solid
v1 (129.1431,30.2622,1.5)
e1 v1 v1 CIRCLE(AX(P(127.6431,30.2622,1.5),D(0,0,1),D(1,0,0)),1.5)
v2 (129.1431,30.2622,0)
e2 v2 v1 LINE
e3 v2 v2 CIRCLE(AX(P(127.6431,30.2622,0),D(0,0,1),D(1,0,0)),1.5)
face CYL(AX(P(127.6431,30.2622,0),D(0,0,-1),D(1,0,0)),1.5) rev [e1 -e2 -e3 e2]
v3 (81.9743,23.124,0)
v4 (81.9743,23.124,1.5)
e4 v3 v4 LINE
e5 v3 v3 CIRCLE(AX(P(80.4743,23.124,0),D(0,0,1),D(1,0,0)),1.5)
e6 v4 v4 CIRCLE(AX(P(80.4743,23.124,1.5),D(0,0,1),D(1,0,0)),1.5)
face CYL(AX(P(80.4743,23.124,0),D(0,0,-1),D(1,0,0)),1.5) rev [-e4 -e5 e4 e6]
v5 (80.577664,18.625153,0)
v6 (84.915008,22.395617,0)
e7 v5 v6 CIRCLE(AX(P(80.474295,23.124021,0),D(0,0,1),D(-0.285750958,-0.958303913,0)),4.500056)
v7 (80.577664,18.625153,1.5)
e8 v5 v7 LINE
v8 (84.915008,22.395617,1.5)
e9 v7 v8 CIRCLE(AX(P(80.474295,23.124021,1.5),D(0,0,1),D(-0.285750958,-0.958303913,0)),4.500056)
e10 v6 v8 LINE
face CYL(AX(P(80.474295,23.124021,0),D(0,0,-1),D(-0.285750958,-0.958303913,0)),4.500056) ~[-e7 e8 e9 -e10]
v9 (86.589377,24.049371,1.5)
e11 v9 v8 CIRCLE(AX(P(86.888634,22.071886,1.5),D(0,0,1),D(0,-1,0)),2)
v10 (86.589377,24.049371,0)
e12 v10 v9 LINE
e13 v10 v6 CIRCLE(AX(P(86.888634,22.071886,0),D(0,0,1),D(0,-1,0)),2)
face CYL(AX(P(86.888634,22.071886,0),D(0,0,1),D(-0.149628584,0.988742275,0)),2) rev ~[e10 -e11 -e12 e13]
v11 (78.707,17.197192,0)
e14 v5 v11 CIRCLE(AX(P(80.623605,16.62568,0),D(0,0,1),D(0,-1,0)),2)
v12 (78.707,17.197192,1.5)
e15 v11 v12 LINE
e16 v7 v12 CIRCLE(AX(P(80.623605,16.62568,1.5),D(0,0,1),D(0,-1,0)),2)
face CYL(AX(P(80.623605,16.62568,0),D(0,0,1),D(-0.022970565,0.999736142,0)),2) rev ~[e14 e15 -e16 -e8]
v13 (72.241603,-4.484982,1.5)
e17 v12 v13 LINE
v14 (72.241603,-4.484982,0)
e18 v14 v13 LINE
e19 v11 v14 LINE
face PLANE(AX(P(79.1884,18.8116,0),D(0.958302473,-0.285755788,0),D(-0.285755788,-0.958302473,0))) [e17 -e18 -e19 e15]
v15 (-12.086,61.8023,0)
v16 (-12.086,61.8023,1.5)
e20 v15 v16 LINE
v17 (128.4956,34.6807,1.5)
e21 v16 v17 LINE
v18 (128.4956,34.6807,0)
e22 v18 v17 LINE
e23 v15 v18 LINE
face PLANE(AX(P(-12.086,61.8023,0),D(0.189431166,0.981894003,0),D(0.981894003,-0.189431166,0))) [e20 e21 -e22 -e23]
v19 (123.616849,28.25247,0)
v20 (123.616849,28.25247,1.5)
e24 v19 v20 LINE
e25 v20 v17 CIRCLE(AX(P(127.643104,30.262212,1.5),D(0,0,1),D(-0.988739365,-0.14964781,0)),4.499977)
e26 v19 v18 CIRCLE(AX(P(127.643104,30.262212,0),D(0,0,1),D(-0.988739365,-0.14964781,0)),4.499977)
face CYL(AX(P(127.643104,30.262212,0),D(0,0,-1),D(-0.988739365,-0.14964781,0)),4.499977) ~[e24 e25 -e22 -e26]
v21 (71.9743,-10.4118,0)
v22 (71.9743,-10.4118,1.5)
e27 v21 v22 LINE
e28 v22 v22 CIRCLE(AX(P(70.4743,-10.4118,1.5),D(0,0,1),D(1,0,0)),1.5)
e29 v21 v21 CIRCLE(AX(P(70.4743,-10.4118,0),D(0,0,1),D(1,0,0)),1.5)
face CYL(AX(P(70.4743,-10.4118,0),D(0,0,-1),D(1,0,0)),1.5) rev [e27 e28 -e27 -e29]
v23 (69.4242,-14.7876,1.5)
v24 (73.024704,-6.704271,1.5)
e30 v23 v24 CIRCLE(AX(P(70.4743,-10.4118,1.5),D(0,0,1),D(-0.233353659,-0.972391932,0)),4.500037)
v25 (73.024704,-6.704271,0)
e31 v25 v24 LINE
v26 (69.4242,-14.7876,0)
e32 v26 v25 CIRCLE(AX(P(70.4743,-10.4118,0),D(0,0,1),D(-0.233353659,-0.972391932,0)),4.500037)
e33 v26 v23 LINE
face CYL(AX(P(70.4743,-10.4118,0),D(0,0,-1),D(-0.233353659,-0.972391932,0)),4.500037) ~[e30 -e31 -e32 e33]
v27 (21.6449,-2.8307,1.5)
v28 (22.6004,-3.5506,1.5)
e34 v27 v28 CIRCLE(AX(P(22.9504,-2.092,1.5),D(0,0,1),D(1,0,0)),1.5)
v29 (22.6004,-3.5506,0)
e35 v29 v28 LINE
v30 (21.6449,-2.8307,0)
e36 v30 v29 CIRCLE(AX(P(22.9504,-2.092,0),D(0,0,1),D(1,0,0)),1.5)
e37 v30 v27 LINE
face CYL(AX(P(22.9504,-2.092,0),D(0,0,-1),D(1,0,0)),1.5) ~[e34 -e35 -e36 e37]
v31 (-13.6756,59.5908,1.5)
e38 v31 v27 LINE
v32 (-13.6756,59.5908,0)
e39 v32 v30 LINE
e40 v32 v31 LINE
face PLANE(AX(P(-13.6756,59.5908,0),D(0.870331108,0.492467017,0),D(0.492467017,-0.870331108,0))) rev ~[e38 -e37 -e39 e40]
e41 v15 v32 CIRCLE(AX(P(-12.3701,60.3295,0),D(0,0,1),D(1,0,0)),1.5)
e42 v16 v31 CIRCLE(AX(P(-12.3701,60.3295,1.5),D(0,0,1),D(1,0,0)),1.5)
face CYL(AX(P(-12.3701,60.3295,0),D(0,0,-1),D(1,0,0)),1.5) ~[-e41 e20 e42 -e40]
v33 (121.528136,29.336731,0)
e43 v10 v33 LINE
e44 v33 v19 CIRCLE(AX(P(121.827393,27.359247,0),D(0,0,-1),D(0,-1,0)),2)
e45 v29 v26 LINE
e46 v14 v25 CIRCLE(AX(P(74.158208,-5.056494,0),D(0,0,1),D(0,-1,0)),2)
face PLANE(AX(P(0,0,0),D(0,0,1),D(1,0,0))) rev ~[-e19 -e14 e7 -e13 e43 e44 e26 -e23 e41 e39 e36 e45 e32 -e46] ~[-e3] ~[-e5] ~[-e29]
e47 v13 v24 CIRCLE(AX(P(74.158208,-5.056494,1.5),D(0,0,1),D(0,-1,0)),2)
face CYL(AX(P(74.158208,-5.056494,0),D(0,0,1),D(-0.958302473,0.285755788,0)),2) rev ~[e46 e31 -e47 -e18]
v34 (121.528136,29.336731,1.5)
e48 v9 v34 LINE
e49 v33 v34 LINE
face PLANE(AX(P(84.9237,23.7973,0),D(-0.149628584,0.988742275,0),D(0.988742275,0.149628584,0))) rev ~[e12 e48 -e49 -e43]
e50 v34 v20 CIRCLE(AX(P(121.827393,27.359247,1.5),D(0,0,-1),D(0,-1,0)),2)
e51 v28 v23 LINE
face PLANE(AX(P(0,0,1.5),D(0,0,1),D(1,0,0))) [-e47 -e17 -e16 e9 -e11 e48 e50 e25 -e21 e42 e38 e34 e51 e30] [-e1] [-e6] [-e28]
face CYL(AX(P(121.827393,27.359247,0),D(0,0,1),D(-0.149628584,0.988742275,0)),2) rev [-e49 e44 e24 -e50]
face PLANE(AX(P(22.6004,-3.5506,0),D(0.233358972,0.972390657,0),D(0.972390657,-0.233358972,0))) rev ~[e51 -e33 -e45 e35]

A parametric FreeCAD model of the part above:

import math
import FreeCAD as App
import Part
import Sketcher
from FreeCAD import Vector


def edges_at(feature, points):
    """Names of the edges that pass closest to the given points."""
    edges = feature.Shape.Edges
    near = lambda p: min(range(len(edges)), key=lambda i: edges[i].distToShape(Part.Vertex(*p))[0])
    return sorted({f"Edge{near(p) + 1}" for p in points})

doc = App.newDocument("Part")
body = doc.addObject("PartDesign::Body", "Body")

# Sketch on XY plane
sketch1 = body.newObject("Sketcher::SketchObject", "Sketch")
sketch1.AttachmentSupport = (doc.getObject("XY_Plane"), [""])
sketch1.MapMode = "FlatFace"
sketch1.addGeometry(Part.LineSegment(Vector(84.9237, 23.7973, 0), Vector(123.1938, 29.5888, 0)), False)
sketch1.addGeometry(Part.ArcOfCircle(Part.Circle(Vector(127.6431, 30.2622, 0), Vector(0, 0, 1), 4.499971), math.radians(-171.393622), math.radians(79.079608)), False)
sketch1.addGeometry(Part.LineSegment(Vector(128.4956, 34.6807, 0), Vector(-12.086, 61.8023, 0)), False)
sketch1.addGeometry(Part.ArcOfCircle(Part.Circle(Vector(-12.3701, 60.3295, 0), Vector(0, 0, 1), 1.5), math.radians(79.081867), math.radians(209.502781)), False)
sketch1.addGeometry(Part.LineSegment(Vector(-13.6756, 59.5908, 0), Vector(21.6449, -2.8307, 0)), False)
sketch1.addGeometry(Part.ArcOfCircle(Part.Circle(Vector(22.9504, -2.092, 0), Vector(0, 0, 1), 1.5), math.radians(-150.497219), math.radians(-103.493356)), False)
sketch1.addGeometry(Part.LineSegment(Vector(22.6004, -3.5506, 0), Vector(69.4242, -14.7876, 0)), False)
sketch1.addGeometry(Part.ArcOfCircle(Part.Circle(Vector(70.4743, -10.4118, 0), Vector(0, 0, 1), 4.500037), math.radians(-103.494594), math.radians(73.396123)), False)
sketch1.addGeometry(Part.LineSegment(Vector(71.7602, -6.0994, 0), Vector(79.1884, 18.8116, 0)), False)
sketch1.addGeometry(Part.ArcOfCircle(Part.Circle(Vector(80.4743, 23.124, 0), Vector(0, 0, 1), 4.500037), math.radians(-106.603877), math.radians(8.604929)), False)
sketch1.addGeometry(Part.Circle(Vector(70.4743, -10.4118, 0), Vector(0, 0, 1), 1.5), False)
sketch1.addGeometry(Part.Circle(Vector(80.4743, 23.124, 0), Vector(0, 0, 1), 1.5), False)
sketch1.addGeometry(Part.Circle(Vector(127.6431, 30.2622, 0), Vector(0, 0, 1), 1.5), False)
sketch1.addConstraint(Sketcher.Constraint("Coincident", 0, 2, 1, 1))
sketch1.addConstraint(Sketcher.Constraint("Coincident", 1, 2, 2, 1))
sketch1.addConstraint(Sketcher.Constraint("Coincident", 2, 2, 3, 1))
sketch1.addConstraint(Sketcher.Constraint("Coincident", 3, 2, 4, 1))
sketch1.addConstraint(Sketcher.Constraint("Coincident", 4, 2, 5, 1))
sketch1.addConstraint(Sketcher.Constraint("Coincident", 5, 2, 6, 1))
sketch1.addConstraint(Sketcher.Constraint("Coincident", 6, 2, 7, 1))
sketch1.addConstraint(Sketcher.Constraint("Coincident", 7, 2, 8, 1))
sketch1.addConstraint(Sketcher.Constraint("Coincident", 8, 2, 9, 1))
sketch1.addConstraint(Sketcher.Constraint("Coincident", 9, 2, 0, 1))
sketch1.addConstraint(Sketcher.Constraint("Coincident", 10, 3, 7, 3))
sketch1.addConstraint(Sketcher.Constraint("Coincident", 11, 3, 9, 3))
sketch1.addConstraint(Sketcher.Constraint("Coincident", 12, 3, 1, 3))
sketch1.addConstraint(Sketcher.Constraint("Diameter", 10, 3.0))
sketch1.addConstraint(Sketcher.Constraint("Diameter", 11, 3.0))
sketch1.addConstraint(Sketcher.Constraint("Diameter", 12, 3.0))
sketch1.addConstraint(Sketcher.Constraint("Radius", 1, 4.5))
sketch1.addConstraint(Sketcher.Constraint("Radius", 3, 1.5))
sketch1.addConstraint(Sketcher.Constraint("Radius", 5, 1.5))
sketch1.addConstraint(Sketcher.Constraint("Radius", 7, 4.5))
sketch1.addConstraint(Sketcher.Constraint("Radius", 9, 4.5))
sketch1.addConstraint(Sketcher.Constraint("DistanceX", 7, 3, 9, 3, 10.0))
sketch1.addConstraint(Sketcher.Constraint("DistanceX", 3, 3, -1, 1, 12.37))
sketch1.addConstraint(Sketcher.Constraint("DistanceX", 3, 2, 9, 3, 94.15))
sketch1.addConstraint(Sketcher.Constraint("DistanceY", 5, 2, 4, 2, 0.72))
sketch1.addConstraint(Sketcher.Constraint("DistanceX", 5, 2, 5, 3, 0.35))
sketch1.addConstraint(Sketcher.Constraint("DistanceX", 6, 2, 7, 3, 1.05))
sketch1.addConstraint(Sketcher.Constraint("Distance", 2, 143.174))
sketch1.addConstraint(Sketcher.Constraint("Distance", 8, 25.995))
sketch1.addConstraint(Sketcher.Constraint("DistanceX", -1, 1, 1, 3, 127.643))
sketch1.addConstraint(Sketcher.Constraint("DistanceY", 5, 3, -1, 1, 2.092))
sketch1.addConstraint(Sketcher.Constraint("DistanceY", -1, 1, 9, 3, 23.124))
sketch1.addConstraint(Sketcher.Constraint("DistanceX", 2, 2, -1, 1, 12.086))
sketch1.addConstraint(Sketcher.Constraint("DistanceX", -1, 1, 4, 2, 21.645))
sketch1.addConstraint(Sketcher.Constraint("DistanceX", 5, 3, 7, 3, 47.524))
sketch1.addConstraint(Sketcher.Constraint("DistanceY", 7, 3, 1, 3, 40.674))
sketch1.addConstraint(Sketcher.Constraint("DistanceY", 0, 2, 1, 2, 5.092))
sketch1.addConstraint(Sketcher.Constraint("DistanceY", 7, 3, 2, 2, 72.214))
sketch1.addConstraint(Sketcher.Constraint("DistanceX", 7, 3, 7, 2, 1.286))
sketch1.addConstraint(Sketcher.Constraint("DistanceX", 8, 2, 9, 3, 1.286))
sketch1.addConstraint(Sketcher.Constraint("DistanceY", 7, 3, 9, 2, 34.209))
pad1 = body.newObject("PartDesign::Pad", "Pad")
pad1.Profile = sketch1
pad1.Length = 1.5
doc.recompute()

fillet = body.newObject("PartDesign::Fillet", "Fillet")
fillet.Base = (pad1, edges_at(pad1, [
    (84.924, 23.797, 0.75),
    (79.188, 18.812, 0.75),
    (71.76, -6.099, 0.75),
    (123.194, 29.589, 0.75),
]))
fillet.Radius = 2

doc.recompute()
